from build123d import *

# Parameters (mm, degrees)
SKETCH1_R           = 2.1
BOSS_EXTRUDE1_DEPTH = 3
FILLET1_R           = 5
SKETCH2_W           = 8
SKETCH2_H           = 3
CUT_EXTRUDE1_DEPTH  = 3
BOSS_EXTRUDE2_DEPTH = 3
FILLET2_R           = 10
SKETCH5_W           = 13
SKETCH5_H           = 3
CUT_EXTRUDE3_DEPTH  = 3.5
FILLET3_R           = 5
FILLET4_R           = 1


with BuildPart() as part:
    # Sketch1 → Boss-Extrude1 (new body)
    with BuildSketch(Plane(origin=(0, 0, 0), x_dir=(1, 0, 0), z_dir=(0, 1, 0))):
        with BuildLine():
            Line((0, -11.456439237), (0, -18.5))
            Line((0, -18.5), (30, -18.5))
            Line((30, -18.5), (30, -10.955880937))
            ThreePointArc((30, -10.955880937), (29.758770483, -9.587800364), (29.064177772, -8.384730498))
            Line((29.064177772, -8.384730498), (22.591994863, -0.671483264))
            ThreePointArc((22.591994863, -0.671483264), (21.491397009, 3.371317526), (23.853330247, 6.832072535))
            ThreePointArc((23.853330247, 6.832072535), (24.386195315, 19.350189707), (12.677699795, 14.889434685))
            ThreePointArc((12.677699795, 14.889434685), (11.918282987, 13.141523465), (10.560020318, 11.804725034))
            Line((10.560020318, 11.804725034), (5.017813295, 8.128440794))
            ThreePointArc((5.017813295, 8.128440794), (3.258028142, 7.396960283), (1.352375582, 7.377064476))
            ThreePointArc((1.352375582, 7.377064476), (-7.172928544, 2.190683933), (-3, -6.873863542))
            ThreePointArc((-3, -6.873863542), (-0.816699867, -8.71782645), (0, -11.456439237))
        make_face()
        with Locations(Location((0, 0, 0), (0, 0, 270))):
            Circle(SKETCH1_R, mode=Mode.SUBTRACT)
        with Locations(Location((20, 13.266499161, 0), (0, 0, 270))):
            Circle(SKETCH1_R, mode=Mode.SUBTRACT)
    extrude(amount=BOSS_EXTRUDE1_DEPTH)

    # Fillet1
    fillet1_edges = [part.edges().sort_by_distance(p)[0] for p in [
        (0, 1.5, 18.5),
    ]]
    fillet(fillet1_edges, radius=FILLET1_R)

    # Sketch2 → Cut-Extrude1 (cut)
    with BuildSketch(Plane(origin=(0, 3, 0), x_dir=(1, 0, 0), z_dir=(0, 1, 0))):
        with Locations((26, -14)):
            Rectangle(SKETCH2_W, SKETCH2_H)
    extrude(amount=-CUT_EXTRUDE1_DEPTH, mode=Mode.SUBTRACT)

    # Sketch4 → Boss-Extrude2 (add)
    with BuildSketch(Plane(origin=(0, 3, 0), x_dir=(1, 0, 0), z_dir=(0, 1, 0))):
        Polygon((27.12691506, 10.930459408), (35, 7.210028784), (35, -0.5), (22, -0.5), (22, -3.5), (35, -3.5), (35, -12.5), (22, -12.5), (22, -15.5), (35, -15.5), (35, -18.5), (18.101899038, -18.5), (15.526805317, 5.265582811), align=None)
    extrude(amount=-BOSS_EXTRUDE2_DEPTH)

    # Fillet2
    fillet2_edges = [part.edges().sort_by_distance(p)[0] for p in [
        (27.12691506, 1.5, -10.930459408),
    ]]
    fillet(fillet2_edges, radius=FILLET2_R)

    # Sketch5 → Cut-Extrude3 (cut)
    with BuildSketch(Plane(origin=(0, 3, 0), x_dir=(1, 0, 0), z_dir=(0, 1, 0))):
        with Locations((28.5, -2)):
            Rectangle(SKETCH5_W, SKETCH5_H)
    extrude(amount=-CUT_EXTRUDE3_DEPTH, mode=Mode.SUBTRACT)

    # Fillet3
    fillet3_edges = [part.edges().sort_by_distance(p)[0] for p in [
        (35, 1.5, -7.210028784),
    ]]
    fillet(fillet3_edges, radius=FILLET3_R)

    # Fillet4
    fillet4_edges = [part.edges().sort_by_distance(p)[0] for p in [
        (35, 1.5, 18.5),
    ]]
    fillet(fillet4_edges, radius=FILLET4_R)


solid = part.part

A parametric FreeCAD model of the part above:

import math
import FreeCAD as App
import Part
import Sketcher
Q = App.Units.Quantity


def edges_at(feature, points):
    """Names of the edges that pass closest to the given points."""
    edges = feature.Shape.Edges
    near = lambda p: min(range(len(edges)), key=lambda i: edges[i].distToShape(Part.Vertex(*p))[0])
    return sorted({f"Edge{near(p) + 1}" for p in points})


def add_polygon(sketch, points):
    """Adds a closed chain of lines whose ends are joined by coincident constraints."""
    first, n = sketch.GeometryCount, len(points)
    for a, b in zip(points, points[1:] + points[:1]):
        sketch.addGeometry(Part.LineSegment(App.Vector(*a, 0), App.Vector(*b, 0)), False)
    for i in range(n):
        sketch.addConstraint(Sketcher.Constraint("Coincident", first + i, 2, first + (i + 1) % n, 1))

doc = App.newDocument("Part")
body = doc.addObject("PartDesign::Body", "Body")

# Sketch on XZ plane
sketch1 = body.newObject("Sketcher::SketchObject", "Sketch")
sketch1.AttachmentSupport = (doc.getObject("XZ_Plane"), [""])
sketch1.MapMode = "FlatFace"
sketch1.addGeometry([
    Part.LineSegment(App.Vector(0, 11.5, 0), App.Vector(0, 18.5, 0)),  # 0
    Part.LineSegment(App.Vector(0, 18.5, 0), App.Vector(30, 18.5, 0)),  # 1
    Part.LineSegment(App.Vector(30, 18.5, 0), App.Vector(30, 11, 0)),  # 2
    Part.ArcOfCircle(Part.Circle(App.Vector(26, 11, 0), App.Vector(0, 0, 1), 4), math.radians(-40), math.radians(0)),  # 3
    Part.LineSegment(App.Vector(29.1, 8.4, 0), App.Vector(22.6, 0.7, 0)),  # 4
    Part.ArcOfCircle(Part.Circle(App.Vector(26.4, -2.5, 0), App.Vector(0, 0, 1), 5), math.radians(140), math.radians(239)),  # 5
    Part.ArcOfCircle(Part.Circle(App.Vector(20, -13.3, 0), App.Vector(0, 0, 1), 7.5), math.radians(-168), math.radians(59)),  # 6
    Part.ArcOfCircle(Part.Circle(App.Vector(7.8, -16, 0), App.Vector(0, 0, 1), 5), math.radians(12), math.radians(56)),  # 7
    Part.LineSegment(App.Vector(10.6, -11.8, 0), App.Vector(5, -8.1, 0)),  # 8
    Part.ArcOfCircle(Part.Circle(App.Vector(2.3, -12.3, 0), App.Vector(0, 0, 1), 5), math.radians(56), math.radians(100)),  # 9
    Part.ArcOfCircle(Part.Circle(App.Vector(0, 0, 0), App.Vector(0, 0, 1), 7.5), math.radians(114), math.radians(280)),  # 10
    Part.ArcOfCircle(Part.Circle(App.Vector(-5, 11.5, 0), App.Vector(0, 0, 1), 5), math.radians(-66), math.radians(0)),  # 11
    Part.Circle(App.Vector(0, 0, 0), App.Vector(0, 0, 1), 2.1),  # 12
    Part.Circle(App.Vector(20, -13.3, 0), App.Vector(0, 0, 1), 2.1),  # 13
], False)
sketch1.addConstraint([
    Sketcher.Constraint("Coincident", 0, 2, 1, 1),
    Sketcher.Constraint("Coincident", 1, 2, 2, 1),
    Sketcher.Constraint("Tangent", 2, 2, 3, 2),
    Sketcher.Constraint("Tangent", 3, 1, 4, 1),
    Sketcher.Constraint("Tangent", 4, 2, 5, 1),
    Sketcher.Constraint("Tangent", 5, 2, 6, 2),
    Sketcher.Constraint("Tangent", 6, 1, 7, 1),
    Sketcher.Constraint("Tangent", 7, 2, 8, 1),
    Sketcher.Constraint("Tangent", 8, 2, 9, 1),
    Sketcher.Constraint("Tangent", 9, 2, 10, 2),
    Sketcher.Constraint("Tangent", 10, 1, 11, 1),
    Sketcher.Constraint("Tangent", 11, 2, 0, 1),
    Sketcher.Constraint("Vertical", 0),
    Sketcher.Constraint("Horizontal", 1),
    Sketcher.Constraint("Vertical", 2),
    Sketcher.Constraint("Coincident", 10, 3, -1, 1),
    Sketcher.Constraint("Coincident", 12, 3, -1, 1),
    Sketcher.Constraint("Coincident", 13, 3, 6, 3),
    Sketcher.Constraint("Equal", 5, 7),
    Sketcher.Constraint("Equal", 7, 9),
    Sketcher.Constraint("Equal", 6, 10),
    Sketcher.Constraint("Equal", 9, 11),
    Sketcher.Constraint("Equal", 12, 13),
    Sketcher.Constraint("PointOnObject", 0, 2, -2),
    Sketcher.Constraint("Radius", 3, Q("4 mm")),
    Sketcher.Constraint("Radius", 5, Q("5 mm")),
    Sketcher.Constraint("Diameter", 12, Q("4.2 mm")),
    Sketcher.Constraint("Radius", 6, Q("7.5 mm")),
    Sketcher.Constraint("DistanceX", 1, 1, 1, 2, Q("30 mm")),
    Sketcher.Constraint("Angle", 4, Q("-130 deg")),
    Sketcher.Constraint("DistanceX", -1, 1, 6, 3, Q("20 mm")),
    Sketcher.Constraint("DistanceY", -1, 1, 0, 2, Q("18.5 mm")),
    Sketcher.Constraint("DistanceY", 2, 2, 2, 1, Q("7.544119 mm")),
    Sketcher.Constraint("DistanceY", 6, 3, -1, 1, Q("13.266499 mm")),
    Sketcher.Constraint("DistanceX", -1, 1, 6, 1, Q("12.6777 mm")),
    Sketcher.Constraint("Distance", 8, Q("6.650648 mm")),
])
pad1 = body.newObject("PartDesign::Pad", "Pad")
pad1.Profile = sketch1
pad1.Length = 3
pad1.Reversed = True
doc.recompute()

fillet = body.newObject("PartDesign::Fillet", "Fillet")
fillet.Base = (pad1, edges_at(pad1, [(0, 1.5, 18.5)]))
fillet.Radius = 5

# Sketch on XZ plane
sketch2 = body.newObject("Sketcher::SketchObject", "Sketch001")
sketch2.AttachmentSupport = (doc.getObject("XZ_Plane"), [""])
sketch2.MapMode = "FlatFace"
sketch2.AttachmentOffset = App.Placement(App.Vector(0, 0, -3), App.Rotation())
add_polygon(sketch2, [(22, 12.5), (22, 15.5), (30, 15.5), (30, 12.5)])  # lines 0-3
sketch2.addConstraint([
    Sketcher.Constraint("Vertical", 0),
    Sketcher.Constraint("Horizontal", 1),
    Sketcher.Constraint("Vertical", 2),
    Sketcher.Constraint("Horizontal", 3),
    Sketcher.Constraint("DistanceX", 1, 1, 1, 2, Q("8 mm")),
    Sketcher.Constraint("DistanceY", 0, 1, 0, 2, Q("3 mm")),
    Sketcher.Constraint("DistanceX", -1, 1, 0, 2, Q("22 mm")),
    Sketcher.Constraint("DistanceY", -1, 1, 0, 2, Q("15.5 mm")),
])
pocket1 = body.newObject("PartDesign::Pocket", "Pocket")
pocket1.Profile = sketch2
pocket1.Length = 3
pocket1.Reversed = True

# Sketch on XZ plane
sketch3 = body.newObject("Sketcher::SketchObject", "Sketch002")
sketch3.AttachmentSupport = (doc.getObject("XZ_Plane"), [""])
sketch3.MapMode = "FlatFace"
sketch3.AttachmentOffset = App.Placement(App.Vector(0, 0, -3), App.Rotation())
add_polygon(sketch3, [(35, -7.2), (27.1, -10.9), (15.5, -5.3), (18.1, 18.5), (35, 18.5), (35, 15.5), (22, 15.5), (22, 12.5), (35, 12.5), (35, 3.5), (22, 3.5), (22, 0.5), (35, 0.5)])  # lines 0-12
sketch3.addConstraint([
    Sketcher.Constraint("Horizontal", 3),
    Sketcher.Constraint("Vertical", 4),
    Sketcher.Constraint("Horizontal", 5),
    Sketcher.Constraint("Vertical", 6),
    Sketcher.Constraint("Horizontal", 7),
    Sketcher.Constraint("Vertical", 8),
    Sketcher.Constraint("Horizontal", 9),
    Sketcher.Constraint("Vertical", 10),
    Sketcher.Constraint("Horizontal", 11),
    Sketcher.Constraint("Vertical", 12),
    Sketcher.Constraint("Vertical", 4, 2, 7, 2),
    Sketcher.Constraint("Vertical", 6, 2, 9, 2),
    Sketcher.Constraint("Vertical", 8, 2, 11, 2),
    Sketcher.Constraint("Equal", 4, 6),
    Sketcher.Constraint("Equal", 6, 10),
    Sketcher.Constraint("DistanceX", 5, 2, 5, 1, Q("13 mm")),
    Sketcher.Constraint("DistanceY", 4, 2, 4, 1, Q("3 mm")),
    Sketcher.Constraint("DistanceY", 8, 2, 8, 1, Q("9 mm")),
    Sketcher.Constraint("DistanceX", -1, 1, 3, 2, Q("35 mm")),
    Sketcher.Constraint("DistanceY", -1, 1, 2, 2, Q("18.5 mm")),
    Sketcher.Constraint("DistanceX", 3, 1, 3, 2, Q("16.898101 mm")),
    Sketcher.Constraint("DistanceY", 12, 2, 12, 1, Q("7.710029 mm")),
    Sketcher.Constraint("Distance", 1, Q("12.90943 mm")),
    Sketcher.Constraint("DistanceY", 0, 2, -1, 1, Q("10.930459 mm")),
    Sketcher.Constraint("DistanceX", 1, 2, 0, 2, Q("11.60011 mm")),
    Sketcher.Constraint("Distance", 0, Q("8.707874 mm")),
])
pad2 = body.newObject("PartDesign::Pad", "Pad001")
pad2.Profile = sketch3
pad2.Length = 3
doc.recompute()

fillet2 = body.newObject("PartDesign::Fillet", "Fillet001")
fillet2.Base = (pad2, edges_at(pad2, [(27.127, 1.5, -10.93)]))
fillet2.Radius = 10

# Sketch on XZ plane
sketch4 = body.newObject("Sketcher::SketchObject", "Sketch003")
sketch4.AttachmentSupport = (doc.getObject("XZ_Plane"), [""])
sketch4.MapMode = "FlatFace"
sketch4.AttachmentOffset = App.Placement(App.Vector(0, 0, -3), App.Rotation())
add_polygon(sketch4, [(22, 0.5), (22, 3.5), (35, 3.5), (35, 0.5)])  # lines 0-3
sketch4.addConstraint([
    Sketcher.Constraint("Vertical", 0),
    Sketcher.Constraint("Horizontal", 1),
    Sketcher.Constraint("Vertical", 2),
    Sketcher.Constraint("Horizontal", 3),
    Sketcher.Constraint("DistanceX", 1, 1, 1, 2, Q("13 mm")),
    Sketcher.Constraint("DistanceY", 0, 1, 0, 2, Q("3 mm")),
    Sketcher.Constraint("DistanceX", -1, 1, 0, 2, Q("22 mm")),
    Sketcher.Constraint("DistanceY", -1, 1, 0, 2, Q("3.5 mm")),
])
pocket2 = body.newObject("PartDesign::Pocket", "Pocket001")
pocket2.Profile = sketch4
pocket2.Length = 3.5
pocket2.Reversed = True
doc.recompute()

fillet3 = body.newObject("PartDesign::Fillet", "Fillet002")
fillet3.Base = (pocket2, edges_at(pocket2, [(35, 1.5, -7.21)]))
fillet3.Radius = 5
doc.recompute()

fillet4 = body.newObject("PartDesign::Fillet", "Fillet003")
fillet4.Base = (fillet3, edges_at(fillet3, [(35, 1.5, 18.5)]))
fillet4.Radius = 1

doc.recompute()
